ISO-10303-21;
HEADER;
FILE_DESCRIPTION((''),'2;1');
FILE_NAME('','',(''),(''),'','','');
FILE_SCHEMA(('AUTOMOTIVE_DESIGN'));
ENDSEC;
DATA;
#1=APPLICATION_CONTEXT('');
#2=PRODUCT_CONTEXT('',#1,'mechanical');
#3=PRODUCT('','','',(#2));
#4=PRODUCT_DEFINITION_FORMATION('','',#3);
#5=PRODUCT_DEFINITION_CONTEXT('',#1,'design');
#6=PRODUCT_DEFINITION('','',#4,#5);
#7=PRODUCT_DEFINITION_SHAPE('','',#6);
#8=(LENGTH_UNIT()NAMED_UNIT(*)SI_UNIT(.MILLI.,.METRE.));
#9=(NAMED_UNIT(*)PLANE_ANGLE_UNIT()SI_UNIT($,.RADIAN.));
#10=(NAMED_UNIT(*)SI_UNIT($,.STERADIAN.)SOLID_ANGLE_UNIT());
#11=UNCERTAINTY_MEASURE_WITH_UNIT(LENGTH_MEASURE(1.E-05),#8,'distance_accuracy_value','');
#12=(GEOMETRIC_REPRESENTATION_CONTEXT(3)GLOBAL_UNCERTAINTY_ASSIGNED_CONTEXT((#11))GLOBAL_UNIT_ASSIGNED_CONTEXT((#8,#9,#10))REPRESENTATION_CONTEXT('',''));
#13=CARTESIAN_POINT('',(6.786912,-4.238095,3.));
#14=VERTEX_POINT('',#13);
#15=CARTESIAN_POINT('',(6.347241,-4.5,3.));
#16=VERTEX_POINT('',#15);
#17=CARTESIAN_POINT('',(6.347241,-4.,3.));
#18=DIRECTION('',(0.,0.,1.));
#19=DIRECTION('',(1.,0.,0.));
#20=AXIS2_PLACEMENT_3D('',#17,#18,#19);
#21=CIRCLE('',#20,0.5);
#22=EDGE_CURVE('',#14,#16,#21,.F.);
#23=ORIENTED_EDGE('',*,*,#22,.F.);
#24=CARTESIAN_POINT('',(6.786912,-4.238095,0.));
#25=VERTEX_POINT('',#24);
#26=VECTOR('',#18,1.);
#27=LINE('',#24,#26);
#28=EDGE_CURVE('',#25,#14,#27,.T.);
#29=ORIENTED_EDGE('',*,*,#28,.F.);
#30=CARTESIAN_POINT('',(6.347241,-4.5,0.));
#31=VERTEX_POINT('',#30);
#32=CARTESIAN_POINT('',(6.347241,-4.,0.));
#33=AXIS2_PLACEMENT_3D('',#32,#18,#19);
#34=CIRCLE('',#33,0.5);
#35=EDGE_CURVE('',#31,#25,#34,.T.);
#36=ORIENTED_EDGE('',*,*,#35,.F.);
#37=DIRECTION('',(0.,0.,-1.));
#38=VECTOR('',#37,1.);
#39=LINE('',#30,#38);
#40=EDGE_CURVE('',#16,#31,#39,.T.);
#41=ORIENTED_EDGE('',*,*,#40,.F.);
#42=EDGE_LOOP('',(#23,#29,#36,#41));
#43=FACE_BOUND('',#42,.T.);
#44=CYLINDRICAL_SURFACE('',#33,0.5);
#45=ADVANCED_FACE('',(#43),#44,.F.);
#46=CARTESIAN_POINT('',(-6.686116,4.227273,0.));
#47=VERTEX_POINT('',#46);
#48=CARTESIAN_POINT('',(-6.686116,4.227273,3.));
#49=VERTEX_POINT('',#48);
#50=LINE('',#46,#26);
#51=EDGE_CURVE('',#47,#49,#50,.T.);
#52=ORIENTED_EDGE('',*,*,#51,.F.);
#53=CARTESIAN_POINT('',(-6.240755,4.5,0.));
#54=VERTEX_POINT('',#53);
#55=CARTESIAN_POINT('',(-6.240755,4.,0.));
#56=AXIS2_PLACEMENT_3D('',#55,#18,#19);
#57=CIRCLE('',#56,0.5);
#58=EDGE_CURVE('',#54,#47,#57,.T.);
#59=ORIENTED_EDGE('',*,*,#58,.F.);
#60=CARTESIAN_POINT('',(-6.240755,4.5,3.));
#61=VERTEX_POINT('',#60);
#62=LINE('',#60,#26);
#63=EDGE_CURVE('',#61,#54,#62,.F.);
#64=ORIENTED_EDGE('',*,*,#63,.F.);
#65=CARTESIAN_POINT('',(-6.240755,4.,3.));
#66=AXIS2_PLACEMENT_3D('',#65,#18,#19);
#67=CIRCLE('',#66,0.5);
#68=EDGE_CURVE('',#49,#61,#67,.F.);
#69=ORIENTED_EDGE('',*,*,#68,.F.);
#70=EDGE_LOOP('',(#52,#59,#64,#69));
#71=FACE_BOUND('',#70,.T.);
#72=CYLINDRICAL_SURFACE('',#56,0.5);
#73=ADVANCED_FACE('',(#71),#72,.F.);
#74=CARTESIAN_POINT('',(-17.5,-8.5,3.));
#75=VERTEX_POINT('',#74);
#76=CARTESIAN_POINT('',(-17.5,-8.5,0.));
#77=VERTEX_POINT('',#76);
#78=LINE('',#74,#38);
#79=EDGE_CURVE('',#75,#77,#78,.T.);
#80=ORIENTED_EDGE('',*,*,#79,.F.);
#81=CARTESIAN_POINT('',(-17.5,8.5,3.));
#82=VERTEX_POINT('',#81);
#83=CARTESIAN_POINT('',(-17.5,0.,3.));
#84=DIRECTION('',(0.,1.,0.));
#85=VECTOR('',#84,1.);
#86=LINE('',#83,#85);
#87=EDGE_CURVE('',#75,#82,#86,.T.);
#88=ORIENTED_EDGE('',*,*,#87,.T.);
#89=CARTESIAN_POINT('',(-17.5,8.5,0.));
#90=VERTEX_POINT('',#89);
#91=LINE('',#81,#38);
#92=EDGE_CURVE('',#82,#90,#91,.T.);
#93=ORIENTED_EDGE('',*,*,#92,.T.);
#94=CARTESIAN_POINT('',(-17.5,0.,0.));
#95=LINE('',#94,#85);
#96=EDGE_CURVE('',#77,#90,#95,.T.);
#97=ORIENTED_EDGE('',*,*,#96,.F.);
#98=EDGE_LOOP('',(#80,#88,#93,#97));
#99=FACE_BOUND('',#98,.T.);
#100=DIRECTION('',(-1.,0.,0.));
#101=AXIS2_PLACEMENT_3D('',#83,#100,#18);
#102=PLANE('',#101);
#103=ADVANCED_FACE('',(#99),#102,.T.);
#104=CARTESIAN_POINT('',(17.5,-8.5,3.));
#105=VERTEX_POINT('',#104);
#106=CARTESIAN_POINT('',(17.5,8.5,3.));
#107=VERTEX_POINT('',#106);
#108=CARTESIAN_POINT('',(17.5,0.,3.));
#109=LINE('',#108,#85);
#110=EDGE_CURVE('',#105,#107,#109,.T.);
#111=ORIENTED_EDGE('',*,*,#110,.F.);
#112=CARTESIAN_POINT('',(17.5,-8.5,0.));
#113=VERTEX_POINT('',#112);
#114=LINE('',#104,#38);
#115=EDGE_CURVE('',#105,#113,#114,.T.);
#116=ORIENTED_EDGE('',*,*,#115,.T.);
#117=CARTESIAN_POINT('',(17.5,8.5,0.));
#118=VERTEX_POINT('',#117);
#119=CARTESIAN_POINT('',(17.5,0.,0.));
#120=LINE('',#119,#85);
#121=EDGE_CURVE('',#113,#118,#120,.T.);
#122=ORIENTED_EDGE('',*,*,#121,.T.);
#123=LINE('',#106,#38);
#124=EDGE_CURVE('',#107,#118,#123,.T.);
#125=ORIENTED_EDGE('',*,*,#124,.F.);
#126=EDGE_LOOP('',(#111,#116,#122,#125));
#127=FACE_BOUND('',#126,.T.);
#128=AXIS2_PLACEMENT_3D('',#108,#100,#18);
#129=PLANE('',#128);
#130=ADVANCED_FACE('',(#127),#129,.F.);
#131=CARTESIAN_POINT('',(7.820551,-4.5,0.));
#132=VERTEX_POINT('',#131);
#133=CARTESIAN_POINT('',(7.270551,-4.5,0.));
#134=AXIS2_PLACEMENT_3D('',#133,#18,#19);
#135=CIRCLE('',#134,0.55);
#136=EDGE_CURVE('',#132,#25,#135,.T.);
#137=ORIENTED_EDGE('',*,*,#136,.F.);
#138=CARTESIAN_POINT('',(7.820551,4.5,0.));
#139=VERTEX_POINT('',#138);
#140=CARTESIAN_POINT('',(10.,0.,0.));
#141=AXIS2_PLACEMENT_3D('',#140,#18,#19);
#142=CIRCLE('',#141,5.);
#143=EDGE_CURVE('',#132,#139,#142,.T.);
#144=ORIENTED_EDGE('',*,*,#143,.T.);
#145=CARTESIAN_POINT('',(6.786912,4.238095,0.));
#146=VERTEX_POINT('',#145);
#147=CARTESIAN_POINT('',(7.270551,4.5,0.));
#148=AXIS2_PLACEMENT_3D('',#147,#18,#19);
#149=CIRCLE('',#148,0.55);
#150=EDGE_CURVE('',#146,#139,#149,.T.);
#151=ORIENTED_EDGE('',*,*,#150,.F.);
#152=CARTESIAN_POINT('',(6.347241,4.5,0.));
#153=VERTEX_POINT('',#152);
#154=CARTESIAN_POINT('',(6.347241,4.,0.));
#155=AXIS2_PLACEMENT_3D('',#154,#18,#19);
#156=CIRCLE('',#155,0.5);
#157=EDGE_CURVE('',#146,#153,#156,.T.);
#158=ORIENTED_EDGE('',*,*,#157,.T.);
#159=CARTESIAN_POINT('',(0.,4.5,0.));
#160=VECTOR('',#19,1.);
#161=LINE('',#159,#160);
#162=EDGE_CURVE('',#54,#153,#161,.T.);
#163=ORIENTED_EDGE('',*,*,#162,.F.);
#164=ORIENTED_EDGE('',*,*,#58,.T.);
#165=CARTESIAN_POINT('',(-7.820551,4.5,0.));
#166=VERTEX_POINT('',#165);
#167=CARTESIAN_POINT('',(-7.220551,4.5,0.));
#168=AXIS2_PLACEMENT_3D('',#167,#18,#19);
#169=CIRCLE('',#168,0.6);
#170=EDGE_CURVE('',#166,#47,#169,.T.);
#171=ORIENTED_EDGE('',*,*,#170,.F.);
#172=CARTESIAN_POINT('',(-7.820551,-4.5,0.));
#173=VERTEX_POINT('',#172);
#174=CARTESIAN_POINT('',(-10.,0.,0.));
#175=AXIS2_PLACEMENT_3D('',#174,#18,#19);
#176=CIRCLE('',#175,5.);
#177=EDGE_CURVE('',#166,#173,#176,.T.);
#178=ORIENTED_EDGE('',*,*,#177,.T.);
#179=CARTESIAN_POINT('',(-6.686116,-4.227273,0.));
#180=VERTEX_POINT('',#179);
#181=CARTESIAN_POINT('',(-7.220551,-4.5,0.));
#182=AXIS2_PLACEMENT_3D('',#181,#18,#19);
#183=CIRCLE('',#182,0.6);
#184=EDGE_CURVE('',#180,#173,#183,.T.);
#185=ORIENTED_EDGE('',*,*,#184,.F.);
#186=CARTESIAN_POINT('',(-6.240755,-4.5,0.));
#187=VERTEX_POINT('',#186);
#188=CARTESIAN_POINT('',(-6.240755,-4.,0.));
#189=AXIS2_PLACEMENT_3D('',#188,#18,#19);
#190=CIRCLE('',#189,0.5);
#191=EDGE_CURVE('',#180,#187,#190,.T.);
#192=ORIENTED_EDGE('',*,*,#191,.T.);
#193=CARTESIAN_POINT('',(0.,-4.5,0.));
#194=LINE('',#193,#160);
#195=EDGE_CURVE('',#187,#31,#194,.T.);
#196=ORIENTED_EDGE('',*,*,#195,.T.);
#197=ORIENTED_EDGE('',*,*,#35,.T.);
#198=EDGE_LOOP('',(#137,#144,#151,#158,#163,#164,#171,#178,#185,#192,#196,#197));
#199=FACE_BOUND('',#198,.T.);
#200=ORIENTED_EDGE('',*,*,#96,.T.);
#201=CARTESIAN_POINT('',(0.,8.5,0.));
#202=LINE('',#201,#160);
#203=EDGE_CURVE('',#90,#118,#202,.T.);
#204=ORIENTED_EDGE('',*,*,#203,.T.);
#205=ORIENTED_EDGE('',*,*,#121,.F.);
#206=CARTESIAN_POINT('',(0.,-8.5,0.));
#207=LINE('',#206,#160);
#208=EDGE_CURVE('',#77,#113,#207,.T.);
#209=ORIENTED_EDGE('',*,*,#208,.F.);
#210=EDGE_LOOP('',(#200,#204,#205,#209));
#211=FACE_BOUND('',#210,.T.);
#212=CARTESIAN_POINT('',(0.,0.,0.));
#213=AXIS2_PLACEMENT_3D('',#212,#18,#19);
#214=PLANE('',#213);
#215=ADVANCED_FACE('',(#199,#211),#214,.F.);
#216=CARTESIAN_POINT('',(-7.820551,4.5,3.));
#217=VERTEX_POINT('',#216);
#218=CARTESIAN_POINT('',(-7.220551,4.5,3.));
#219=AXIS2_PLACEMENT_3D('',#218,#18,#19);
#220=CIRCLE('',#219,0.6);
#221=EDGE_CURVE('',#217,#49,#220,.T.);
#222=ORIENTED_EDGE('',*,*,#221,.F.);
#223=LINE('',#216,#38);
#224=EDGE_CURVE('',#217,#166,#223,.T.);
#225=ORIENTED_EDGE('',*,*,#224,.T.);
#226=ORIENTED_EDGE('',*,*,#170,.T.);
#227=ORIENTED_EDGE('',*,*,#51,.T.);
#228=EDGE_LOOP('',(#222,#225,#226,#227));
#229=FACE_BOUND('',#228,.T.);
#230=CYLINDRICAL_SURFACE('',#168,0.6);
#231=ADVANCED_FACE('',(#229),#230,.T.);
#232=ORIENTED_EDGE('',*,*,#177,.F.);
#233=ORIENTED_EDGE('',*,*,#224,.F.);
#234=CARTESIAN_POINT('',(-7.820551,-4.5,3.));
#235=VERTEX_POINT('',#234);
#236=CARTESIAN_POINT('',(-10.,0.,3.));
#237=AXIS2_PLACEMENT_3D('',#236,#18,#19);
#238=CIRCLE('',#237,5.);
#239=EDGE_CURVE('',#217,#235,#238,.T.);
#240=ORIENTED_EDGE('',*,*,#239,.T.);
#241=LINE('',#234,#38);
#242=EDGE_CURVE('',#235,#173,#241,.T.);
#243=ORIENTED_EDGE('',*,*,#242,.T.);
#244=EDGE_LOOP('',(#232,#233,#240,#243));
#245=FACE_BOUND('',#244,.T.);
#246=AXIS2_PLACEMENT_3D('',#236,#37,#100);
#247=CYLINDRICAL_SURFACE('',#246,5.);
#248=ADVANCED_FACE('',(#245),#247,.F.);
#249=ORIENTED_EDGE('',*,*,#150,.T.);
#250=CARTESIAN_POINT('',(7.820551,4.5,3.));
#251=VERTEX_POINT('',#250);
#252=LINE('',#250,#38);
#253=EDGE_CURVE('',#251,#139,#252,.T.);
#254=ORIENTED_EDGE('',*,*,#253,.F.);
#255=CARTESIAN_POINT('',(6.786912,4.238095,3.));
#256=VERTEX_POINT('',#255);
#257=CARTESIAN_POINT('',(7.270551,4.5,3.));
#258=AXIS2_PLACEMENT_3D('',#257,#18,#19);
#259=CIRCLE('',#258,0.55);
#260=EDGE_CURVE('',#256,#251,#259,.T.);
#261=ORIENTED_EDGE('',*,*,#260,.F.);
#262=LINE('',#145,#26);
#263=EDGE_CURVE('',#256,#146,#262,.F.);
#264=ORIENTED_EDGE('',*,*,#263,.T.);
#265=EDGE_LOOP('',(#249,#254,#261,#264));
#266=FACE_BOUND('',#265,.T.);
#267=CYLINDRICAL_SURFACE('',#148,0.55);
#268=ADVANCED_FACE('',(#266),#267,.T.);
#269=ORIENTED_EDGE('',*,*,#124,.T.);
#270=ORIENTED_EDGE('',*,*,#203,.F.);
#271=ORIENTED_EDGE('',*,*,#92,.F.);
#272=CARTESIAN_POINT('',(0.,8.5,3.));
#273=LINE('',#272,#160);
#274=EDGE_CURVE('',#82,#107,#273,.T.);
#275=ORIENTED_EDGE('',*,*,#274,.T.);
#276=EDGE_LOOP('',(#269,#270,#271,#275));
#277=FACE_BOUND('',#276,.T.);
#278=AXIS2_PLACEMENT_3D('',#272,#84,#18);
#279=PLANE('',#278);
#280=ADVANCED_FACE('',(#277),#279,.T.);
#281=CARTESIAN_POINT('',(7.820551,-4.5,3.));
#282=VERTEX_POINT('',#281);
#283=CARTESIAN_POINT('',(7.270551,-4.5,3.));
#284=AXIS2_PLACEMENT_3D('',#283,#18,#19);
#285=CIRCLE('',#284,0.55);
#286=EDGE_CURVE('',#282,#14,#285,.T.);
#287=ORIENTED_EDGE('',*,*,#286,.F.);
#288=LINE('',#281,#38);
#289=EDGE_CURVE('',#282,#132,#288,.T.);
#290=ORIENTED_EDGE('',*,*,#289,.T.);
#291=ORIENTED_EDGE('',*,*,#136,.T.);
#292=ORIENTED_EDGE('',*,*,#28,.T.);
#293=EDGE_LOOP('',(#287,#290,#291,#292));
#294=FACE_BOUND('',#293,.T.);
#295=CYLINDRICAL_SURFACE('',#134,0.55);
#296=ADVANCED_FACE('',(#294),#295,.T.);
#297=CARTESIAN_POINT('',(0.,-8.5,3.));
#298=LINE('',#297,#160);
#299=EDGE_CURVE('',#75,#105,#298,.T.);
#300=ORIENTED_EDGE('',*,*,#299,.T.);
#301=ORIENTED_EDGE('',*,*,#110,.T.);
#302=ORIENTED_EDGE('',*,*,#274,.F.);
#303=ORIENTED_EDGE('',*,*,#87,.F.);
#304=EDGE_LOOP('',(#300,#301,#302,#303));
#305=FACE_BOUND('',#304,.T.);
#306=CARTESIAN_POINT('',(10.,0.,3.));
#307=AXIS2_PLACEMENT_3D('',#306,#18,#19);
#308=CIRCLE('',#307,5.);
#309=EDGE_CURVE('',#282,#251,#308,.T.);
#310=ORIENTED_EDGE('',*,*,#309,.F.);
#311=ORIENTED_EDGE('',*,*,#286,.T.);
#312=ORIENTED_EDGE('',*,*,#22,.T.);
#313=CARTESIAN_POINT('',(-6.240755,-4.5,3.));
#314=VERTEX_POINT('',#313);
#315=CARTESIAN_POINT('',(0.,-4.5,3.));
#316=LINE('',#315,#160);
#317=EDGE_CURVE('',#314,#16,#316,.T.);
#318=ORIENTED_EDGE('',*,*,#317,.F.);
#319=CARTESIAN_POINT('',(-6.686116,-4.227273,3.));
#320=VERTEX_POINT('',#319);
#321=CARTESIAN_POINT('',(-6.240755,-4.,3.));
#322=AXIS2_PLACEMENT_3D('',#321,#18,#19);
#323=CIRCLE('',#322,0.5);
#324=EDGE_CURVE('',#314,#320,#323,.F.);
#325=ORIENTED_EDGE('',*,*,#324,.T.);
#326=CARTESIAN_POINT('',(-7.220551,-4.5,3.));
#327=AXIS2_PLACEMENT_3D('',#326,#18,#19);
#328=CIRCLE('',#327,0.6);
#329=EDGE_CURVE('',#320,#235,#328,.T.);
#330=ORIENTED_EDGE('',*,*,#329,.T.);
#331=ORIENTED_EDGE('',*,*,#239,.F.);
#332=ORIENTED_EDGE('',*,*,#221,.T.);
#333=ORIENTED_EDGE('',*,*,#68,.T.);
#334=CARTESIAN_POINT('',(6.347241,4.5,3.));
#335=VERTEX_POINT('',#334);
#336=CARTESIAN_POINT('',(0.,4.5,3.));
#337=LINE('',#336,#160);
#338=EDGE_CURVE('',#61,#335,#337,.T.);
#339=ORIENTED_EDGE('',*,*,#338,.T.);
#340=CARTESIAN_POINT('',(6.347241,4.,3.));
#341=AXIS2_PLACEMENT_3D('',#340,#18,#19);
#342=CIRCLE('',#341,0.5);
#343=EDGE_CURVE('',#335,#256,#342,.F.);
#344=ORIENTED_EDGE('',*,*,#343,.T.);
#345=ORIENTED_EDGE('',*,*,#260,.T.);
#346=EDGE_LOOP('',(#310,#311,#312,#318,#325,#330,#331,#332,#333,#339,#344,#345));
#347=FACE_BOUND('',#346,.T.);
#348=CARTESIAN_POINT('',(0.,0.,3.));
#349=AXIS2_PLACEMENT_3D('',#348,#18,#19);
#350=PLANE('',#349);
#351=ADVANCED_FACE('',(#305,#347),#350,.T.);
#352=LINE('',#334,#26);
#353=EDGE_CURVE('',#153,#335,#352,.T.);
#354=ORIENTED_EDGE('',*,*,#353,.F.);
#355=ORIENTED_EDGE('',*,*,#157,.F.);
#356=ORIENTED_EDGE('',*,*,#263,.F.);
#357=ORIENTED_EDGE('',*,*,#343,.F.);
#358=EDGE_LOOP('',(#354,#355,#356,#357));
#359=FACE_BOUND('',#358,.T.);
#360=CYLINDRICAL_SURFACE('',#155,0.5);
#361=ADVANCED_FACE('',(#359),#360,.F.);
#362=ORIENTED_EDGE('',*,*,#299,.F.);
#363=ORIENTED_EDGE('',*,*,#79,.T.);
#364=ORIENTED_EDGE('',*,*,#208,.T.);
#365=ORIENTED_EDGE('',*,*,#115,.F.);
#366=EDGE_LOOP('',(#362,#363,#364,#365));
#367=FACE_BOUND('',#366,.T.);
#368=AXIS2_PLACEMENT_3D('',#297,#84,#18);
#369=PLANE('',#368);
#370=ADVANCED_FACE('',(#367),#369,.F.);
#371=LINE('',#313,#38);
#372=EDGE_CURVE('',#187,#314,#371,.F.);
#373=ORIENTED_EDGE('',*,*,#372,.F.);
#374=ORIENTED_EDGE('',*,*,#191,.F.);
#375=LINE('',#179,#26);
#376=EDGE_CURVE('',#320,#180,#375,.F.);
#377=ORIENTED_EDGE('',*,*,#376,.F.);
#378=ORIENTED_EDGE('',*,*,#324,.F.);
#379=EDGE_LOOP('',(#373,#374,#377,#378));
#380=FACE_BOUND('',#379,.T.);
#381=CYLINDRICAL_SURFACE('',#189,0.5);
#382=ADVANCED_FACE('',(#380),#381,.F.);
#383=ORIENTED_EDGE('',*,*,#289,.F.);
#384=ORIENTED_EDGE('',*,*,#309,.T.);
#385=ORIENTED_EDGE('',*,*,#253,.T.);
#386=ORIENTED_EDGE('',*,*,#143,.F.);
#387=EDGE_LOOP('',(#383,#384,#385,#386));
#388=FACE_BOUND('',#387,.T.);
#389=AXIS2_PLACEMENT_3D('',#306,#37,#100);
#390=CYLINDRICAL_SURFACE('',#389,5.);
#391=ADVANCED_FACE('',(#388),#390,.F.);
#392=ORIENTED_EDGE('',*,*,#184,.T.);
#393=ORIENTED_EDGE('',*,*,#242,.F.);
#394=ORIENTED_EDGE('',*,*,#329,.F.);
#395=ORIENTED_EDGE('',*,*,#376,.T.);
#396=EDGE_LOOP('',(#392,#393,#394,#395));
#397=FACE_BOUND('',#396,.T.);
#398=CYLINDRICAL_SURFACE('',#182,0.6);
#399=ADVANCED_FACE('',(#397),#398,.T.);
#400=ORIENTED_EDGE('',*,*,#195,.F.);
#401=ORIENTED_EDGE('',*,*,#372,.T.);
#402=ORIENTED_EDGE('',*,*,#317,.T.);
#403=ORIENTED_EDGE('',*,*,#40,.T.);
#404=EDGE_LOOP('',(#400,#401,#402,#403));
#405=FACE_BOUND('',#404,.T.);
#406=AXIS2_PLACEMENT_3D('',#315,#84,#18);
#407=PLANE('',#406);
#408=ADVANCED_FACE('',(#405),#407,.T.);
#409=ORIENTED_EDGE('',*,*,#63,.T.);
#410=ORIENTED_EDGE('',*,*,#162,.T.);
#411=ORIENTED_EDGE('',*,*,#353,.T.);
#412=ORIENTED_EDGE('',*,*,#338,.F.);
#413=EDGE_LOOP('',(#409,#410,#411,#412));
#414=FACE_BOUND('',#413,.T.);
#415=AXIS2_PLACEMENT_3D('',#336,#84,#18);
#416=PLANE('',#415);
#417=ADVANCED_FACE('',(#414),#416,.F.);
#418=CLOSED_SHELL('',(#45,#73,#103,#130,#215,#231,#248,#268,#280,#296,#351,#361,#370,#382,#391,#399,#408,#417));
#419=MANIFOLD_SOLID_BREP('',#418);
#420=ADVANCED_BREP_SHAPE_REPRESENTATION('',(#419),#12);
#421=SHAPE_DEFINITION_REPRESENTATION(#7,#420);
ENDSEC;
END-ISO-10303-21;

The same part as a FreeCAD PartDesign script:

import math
import FreeCAD as App
import Part
import Sketcher
Q = App.Units.Quantity


def edges_at(feature, points):
    """Names of the edges that pass closest to the given points."""
    edges = feature.Shape.Edges
    near = lambda p: min(range(len(edges)), key=lambda i: edges[i].distToShape(Part.Vertex(*p))[0])
    return sorted({f"Edge{near(p) + 1}" for p in points})


def add_polygon(sketch, points):
    """Adds a closed chain of lines whose ends are joined by coincident constraints."""
    first, n = sketch.GeometryCount, len(points)
    for a, b in zip(points, points[1:] + points[:1]):
        sketch.addGeometry(Part.LineSegment(App.Vector(*a, 0), App.Vector(*b, 0)), False)
    for i in range(n):
        sketch.addConstraint(Sketcher.Constraint("Coincident", first + i, 2, first + (i + 1) % n, 1))

doc = App.newDocument("Part")
body = doc.addObject("PartDesign::Body", "Body")

sketch1 = doc.addObject("Sketcher::SketchObject", "Sketch")
body.addObject(sketch1)
sketch1.AttachmentSupport = (doc.XY_Plane, [""])
sketch1.MapMode = "FlatFace"
add_polygon(sketch1, [(-18, 8), (-18, -8), (18, -8), (18, 8)])
sketch1.addGeometry(Part.ArcOfCircle(Part.Circle(App.Vector(10, 0, 0), App.Vector(0, 0, 1), 5), math.radians(-116), math.radians(0)), False)
sketch1.addGeometry(Part.LineSegment(App.Vector(8, -4, 0), App.Vector(-8, -4, 0)), False)
sketch1.addGeometry(Part.ArcOfCircle(Part.Circle(App.Vector(-10, 0, 0), App.Vector(0, 0, 1), 5), math.radians(64), math.radians(296)), False)
sketch1.addGeometry(Part.LineSegment(App.Vector(-8, 4, 0), App.Vector(8, 4, 0)), False)
sketch1.addGeometry(Part.ArcOfCircle(Part.Circle(App.Vector(10, 0, 0), App.Vector(0, 0, 1), 5), math.radians(0), math.radians(116)), False)
sketch1.addConstraint([
    Sketcher.Constraint("Coincident", 4, 1, 5, 1),
    Sketcher.Constraint("Coincident", 5, 2, 6, 2),
    Sketcher.Constraint("Coincident", 6, 1, 7, 1),
    Sketcher.Constraint("Coincident", 7, 2, 8, 2),
    Sketcher.Constraint("Tangent", 8, 1, 4, 2),
    Sketcher.Constraint("Vertical", 0),
    Sketcher.Constraint("Horizontal", 1),
    Sketcher.Constraint("Vertical", 2),
    Sketcher.Constraint("Horizontal", 3),
    Sketcher.Constraint("Horizontal", 5),
    Sketcher.Constraint("Horizontal", 7),
    Sketcher.Constraint("Equal", 4, 6),
    Sketcher.Constraint("Equal", 6, 8),
    Sketcher.Constraint("Symmetric", 4, 3, 6, 3, -1, 1),
    Sketcher.Constraint("Symmetric", 0, 2, 2, 2, -1, 1),
    Sketcher.Constraint("Symmetric", 5, 2, 6, 1, -1),
    Sketcher.Constraint("PointOnObject", 8, 1, -1),
    Sketcher.Constraint("Radius", 4, Q("5 mm")),
    Sketcher.Constraint("DistanceX", 1, 1, 1, 2, Q("35 mm")),
    Sketcher.Constraint("DistanceY", 0, 2, 0, 1, Q("17 mm")),
    Sketcher.Constraint("DistanceX", -1, 1, 4, 3, Q("10 mm")),
    Sketcher.Constraint("DistanceY", 1, 2, 4, 1, Q("4 mm")),
])
pad1 = doc.addObject("PartDesign::Pad", "Pad")
body.addObject(pad1)
pad1.Profile = sketch1
pad1.Length = 3

sketch2 = doc.addObject("Sketcher::SketchObject", "Sketch001")
body.addObject(sketch2)
sketch2.AttachmentSupport = (doc.XY_Plane, [""])
sketch2.MapMode = "FlatFace"
sketch2.AttachmentOffset = App.Placement(App.Vector(0, 0, 3), App.Rotation())
sketch2.addGeometry([
    Part.Circle(App.Vector(-7.2, 4.5, 0), App.Vector(0, 0, 1), 0.6),
    Part.Circle(App.Vector(-7.2, -4.5, 0), App.Vector(0, 0, 1), 0.6),
    Part.Circle(App.Vector(7.3, -4.5, 0), App.Vector(0, 0, 1), 0.6),
    Part.Circle(App.Vector(7.3, 4.5, 0), App.Vector(0, 0, 1), 0.6),
], False)
sketch2.addConstraint([
    Sketcher.Constraint("Equal", 0, 1),
    Sketcher.Constraint("Equal", 2, 3),
    Sketcher.Constraint("Symmetric", 0, 3, 1, 3, -1),
    Sketcher.Constraint("Symmetric", 2, 3, 3, 3, -1),
    Sketcher.Constraint("Horizontal", 1, 3, 2, 3),
    Sketcher.Constraint("Diameter", 0, Q("1.2 mm")),
    Sketcher.Constraint("Diameter", 2, Q("1.1 mm")),
    Sketcher.Constraint("DistanceY", 1, 3, 0, 3, Q("9 mm")),
    Sketcher.Constraint("DistanceX", 1, 3, 2, 3, Q("14.491101 mm")),
    Sketcher.Constraint("DistanceX", 0, 3, -1, 1, Q("7.220551 mm")),
])
pad2 = doc.addObject("PartDesign::Pad", "Pad001")
body.addObject(pad2)
pad2.Profile = sketch2
pad2.Length = 3
pad2.Reversed = True
doc.recompute()

fillet = doc.addObject("PartDesign::Fillet", "Fillet")
body.addObject(fillet)
fillet.Base = (pad2, edges_at(pad2, [
    (-6.621, 4.5, 1.5),
    (-6.621, -4.5, 1.5),
    (6.721, -4.5, 1.5),
    (6.721, 4.5, 1.5),
]))
fillet.Radius = 0.5

doc.recompute()
